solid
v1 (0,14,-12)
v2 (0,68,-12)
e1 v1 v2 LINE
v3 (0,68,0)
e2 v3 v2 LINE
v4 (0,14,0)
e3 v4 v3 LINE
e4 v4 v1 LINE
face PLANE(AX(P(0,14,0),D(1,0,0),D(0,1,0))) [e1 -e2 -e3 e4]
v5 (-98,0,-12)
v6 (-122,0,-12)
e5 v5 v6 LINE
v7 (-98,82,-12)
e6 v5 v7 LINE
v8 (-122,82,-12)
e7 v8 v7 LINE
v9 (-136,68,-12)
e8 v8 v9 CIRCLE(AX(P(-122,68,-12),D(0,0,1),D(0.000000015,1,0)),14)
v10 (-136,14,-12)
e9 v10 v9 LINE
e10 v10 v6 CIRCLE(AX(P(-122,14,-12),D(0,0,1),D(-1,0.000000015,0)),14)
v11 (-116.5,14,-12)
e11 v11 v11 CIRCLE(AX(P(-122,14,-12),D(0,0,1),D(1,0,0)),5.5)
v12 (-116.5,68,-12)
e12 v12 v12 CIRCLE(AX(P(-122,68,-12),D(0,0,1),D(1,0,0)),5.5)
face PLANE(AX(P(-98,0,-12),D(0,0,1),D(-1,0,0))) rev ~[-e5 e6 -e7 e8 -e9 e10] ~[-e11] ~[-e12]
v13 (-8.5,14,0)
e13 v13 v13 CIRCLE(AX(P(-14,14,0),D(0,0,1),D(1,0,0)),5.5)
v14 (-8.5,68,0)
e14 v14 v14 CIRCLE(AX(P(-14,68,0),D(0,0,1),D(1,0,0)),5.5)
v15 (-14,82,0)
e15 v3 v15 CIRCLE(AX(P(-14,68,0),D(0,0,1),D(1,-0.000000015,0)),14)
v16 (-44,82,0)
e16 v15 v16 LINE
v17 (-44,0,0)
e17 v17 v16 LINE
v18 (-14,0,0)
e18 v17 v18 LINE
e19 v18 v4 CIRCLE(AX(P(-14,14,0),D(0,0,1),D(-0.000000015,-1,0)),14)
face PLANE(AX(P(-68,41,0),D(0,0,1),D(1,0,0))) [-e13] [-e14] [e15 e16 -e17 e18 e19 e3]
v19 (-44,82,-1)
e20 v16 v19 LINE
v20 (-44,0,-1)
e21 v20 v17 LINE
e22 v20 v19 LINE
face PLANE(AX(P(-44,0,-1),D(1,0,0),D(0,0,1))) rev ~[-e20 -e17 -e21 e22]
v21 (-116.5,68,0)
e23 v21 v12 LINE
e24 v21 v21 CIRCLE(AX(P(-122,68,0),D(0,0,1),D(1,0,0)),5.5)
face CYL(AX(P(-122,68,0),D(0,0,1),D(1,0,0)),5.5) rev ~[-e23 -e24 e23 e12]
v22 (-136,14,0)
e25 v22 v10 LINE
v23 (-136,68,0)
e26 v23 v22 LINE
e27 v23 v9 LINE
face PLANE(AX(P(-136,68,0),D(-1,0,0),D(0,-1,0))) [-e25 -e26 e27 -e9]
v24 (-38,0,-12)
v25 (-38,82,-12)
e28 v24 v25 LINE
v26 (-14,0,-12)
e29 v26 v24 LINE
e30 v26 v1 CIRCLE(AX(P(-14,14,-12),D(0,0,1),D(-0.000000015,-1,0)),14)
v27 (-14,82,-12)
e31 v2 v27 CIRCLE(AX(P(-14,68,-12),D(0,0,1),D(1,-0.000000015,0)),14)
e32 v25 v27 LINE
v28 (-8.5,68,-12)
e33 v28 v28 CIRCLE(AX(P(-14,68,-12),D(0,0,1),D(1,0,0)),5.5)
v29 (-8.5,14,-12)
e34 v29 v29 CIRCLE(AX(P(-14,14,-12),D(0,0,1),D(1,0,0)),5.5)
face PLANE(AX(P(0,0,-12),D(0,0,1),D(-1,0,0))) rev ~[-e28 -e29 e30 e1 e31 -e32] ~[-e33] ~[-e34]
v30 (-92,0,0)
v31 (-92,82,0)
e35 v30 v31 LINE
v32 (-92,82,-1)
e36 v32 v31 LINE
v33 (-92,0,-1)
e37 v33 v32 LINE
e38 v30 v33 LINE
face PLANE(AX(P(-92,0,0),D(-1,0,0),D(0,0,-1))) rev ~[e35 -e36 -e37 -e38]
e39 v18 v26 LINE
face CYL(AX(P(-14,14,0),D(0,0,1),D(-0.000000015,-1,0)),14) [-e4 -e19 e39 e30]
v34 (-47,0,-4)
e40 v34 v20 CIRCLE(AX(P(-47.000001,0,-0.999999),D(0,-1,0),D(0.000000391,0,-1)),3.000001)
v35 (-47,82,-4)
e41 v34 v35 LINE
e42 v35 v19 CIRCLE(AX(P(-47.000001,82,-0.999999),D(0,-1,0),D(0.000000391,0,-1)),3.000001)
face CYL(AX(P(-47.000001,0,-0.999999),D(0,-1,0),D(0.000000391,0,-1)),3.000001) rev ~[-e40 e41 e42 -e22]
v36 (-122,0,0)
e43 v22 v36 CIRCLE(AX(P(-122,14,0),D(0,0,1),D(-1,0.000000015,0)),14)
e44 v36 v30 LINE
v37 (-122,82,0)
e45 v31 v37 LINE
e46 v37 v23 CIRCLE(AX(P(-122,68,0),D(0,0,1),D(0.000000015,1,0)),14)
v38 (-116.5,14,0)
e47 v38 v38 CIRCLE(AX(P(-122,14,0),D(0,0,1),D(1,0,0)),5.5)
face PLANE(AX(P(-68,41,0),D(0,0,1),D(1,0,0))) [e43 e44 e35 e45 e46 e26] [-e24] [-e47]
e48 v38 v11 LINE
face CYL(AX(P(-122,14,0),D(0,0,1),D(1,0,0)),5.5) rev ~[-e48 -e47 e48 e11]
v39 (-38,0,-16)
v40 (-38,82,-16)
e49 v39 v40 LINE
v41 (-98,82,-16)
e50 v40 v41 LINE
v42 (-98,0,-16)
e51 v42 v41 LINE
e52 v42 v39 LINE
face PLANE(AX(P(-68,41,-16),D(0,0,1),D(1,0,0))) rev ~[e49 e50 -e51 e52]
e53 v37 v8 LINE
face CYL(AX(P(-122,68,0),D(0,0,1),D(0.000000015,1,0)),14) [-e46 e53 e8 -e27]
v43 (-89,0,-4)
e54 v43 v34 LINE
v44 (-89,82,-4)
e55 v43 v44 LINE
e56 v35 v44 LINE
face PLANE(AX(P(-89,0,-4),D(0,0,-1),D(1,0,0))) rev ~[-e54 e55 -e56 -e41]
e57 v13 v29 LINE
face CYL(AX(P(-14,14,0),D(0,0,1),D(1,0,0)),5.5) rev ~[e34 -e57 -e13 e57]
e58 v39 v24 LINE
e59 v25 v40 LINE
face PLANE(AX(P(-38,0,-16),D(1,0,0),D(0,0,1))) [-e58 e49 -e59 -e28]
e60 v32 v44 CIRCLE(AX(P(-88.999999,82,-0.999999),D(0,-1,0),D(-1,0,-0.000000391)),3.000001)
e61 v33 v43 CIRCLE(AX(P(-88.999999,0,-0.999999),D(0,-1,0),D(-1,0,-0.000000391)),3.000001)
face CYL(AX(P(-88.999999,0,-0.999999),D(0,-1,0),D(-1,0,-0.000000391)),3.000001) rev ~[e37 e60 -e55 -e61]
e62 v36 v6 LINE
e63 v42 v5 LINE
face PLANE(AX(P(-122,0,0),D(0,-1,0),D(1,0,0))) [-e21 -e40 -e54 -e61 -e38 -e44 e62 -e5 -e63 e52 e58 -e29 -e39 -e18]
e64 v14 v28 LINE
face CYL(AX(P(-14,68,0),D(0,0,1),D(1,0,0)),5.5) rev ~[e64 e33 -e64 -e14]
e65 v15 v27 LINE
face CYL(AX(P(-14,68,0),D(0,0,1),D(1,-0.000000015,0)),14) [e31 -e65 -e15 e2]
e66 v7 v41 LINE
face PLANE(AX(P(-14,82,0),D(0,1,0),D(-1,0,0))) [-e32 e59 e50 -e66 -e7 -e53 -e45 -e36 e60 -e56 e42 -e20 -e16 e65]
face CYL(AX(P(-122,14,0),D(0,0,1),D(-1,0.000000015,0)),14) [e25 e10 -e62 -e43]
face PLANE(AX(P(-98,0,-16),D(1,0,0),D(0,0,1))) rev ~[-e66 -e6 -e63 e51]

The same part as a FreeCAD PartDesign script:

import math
import FreeCAD as App
import Part
import Sketcher
from FreeCAD import Vector
Q = App.Units.Quantity

doc = App.newDocument("Part")
body = doc.addObject("PartDesign::Body", "Body")

# Sketch on XY plane
sketch1 = doc.addObject("Sketcher::SketchObject", "Sketch")
body.addObject(sketch1)
sketch1.AttachmentSupport = (doc.XY_Plane, [""])
sketch1.MapMode = "FlatFace"
sketch1.addGeometry([
    Part.LineSegment(Vector(-122, 0, 0), Vector(-14, 0, 0)),  # 0
    Part.ArcOfCircle(Part.Circle(Vector(-14, 14, 0), Vector(0, 0, 1), 14), math.radians(-90), math.radians(0)),  # 1
    Part.LineSegment(Vector(0, 14, 0), Vector(0, 68, 0)),  # 2
    Part.ArcOfCircle(Part.Circle(Vector(-14, 68, 0), Vector(0, 0, 1), 14), math.radians(0), math.radians(90)),  # 3
    Part.LineSegment(Vector(-14, 82, 0), Vector(-122, 82, 0)),  # 4
    Part.ArcOfCircle(Part.Circle(Vector(-122, 68, 0), Vector(0, 0, 1), 14), math.radians(90), math.radians(180)),  # 5
    Part.LineSegment(Vector(-136, 68, 0), Vector(-136, 14, 0)),  # 6
    Part.ArcOfCircle(Part.Circle(Vector(-122, 14, 0), Vector(0, 0, 1), 14), math.radians(180), math.radians(270)),  # 7
    Part.Circle(Vector(-122, 14, 0), Vector(0, 0, 1), 6),  # 8
    Part.Circle(Vector(-14, 14, 0), Vector(0, 0, 1), 6),  # 9
    Part.Circle(Vector(-122, 68, 0), Vector(0, 0, 1), 6),  # 10
    Part.Circle(Vector(-14, 68, 0), Vector(0, 0, 1), 6),  # 11
], False)
sketch1.addConstraint([
    Sketcher.Constraint("Tangent", 0, 2, 1, 1),
    Sketcher.Constraint("Tangent", 1, 2, 2, 1),
    Sketcher.Constraint("Tangent", 2, 2, 3, 1),
    Sketcher.Constraint("Tangent", 3, 2, 4, 1),
    Sketcher.Constraint("Tangent", 4, 2, 5, 1),
    Sketcher.Constraint("Tangent", 5, 2, 6, 1),
    Sketcher.Constraint("Tangent", 6, 2, 7, 1),
    Sketcher.Constraint("Tangent", 7, 2, 0, 1),
    Sketcher.Constraint("Horizontal", 0),
    Sketcher.Constraint("Vertical", 2),
    Sketcher.Constraint("Horizontal", 4),
    Sketcher.Constraint("Vertical", 6),
    Sketcher.Constraint("Coincident", 8, 3, 7, 3),
    Sketcher.Constraint("Coincident", 9, 3, 1, 3),
    Sketcher.Constraint("Coincident", 10, 3, 5, 3),
    Sketcher.Constraint("Coincident", 11, 3, 3, 3),
    Sketcher.Constraint("Equal", 1, 3),
    Sketcher.Constraint("Equal", 3, 5),
    Sketcher.Constraint("Equal", 5, 7),
    Sketcher.Constraint("Equal", 8, 9),
    Sketcher.Constraint("Equal", 9, 10),
    Sketcher.Constraint("Equal", 10, 11),
    Sketcher.Constraint("PointOnObject", 0, 2, -1),
    Sketcher.Constraint("PointOnObject", 1, 2, -2),
    Sketcher.Constraint("Diameter", 8, Q("11 mm")),
    Sketcher.Constraint("Radius", 1, Q("14 mm")),
    Sketcher.Constraint("DistanceX", 0, 1, 0, 2, Q("108 mm")),
    Sketcher.Constraint("DistanceY", 2, 1, 2, 2, Q("54 mm")),
])
pad1 = doc.addObject("PartDesign::Pad", "Pad")
body.addObject(pad1)
pad1.Profile = sketch1
pad1.Length = 16
pad1.Reversed = True

# Sketch on XZ plane
sketch2 = doc.addObject("Sketcher::SketchObject", "Sketch001")
body.addObject(sketch2)
sketch2.AttachmentSupport = (doc.XZ_Plane, [""])
sketch2.MapMode = "FlatFace"
sketch2.addGeometry([
    Part.LineSegment(Vector(-98, -16, 0), Vector(-98, -12, 0)),  # 0
    Part.LineSegment(Vector(-98, -12, 0), Vector(-136, -12, 0)),  # 1
    Part.LineSegment(Vector(-136, -12, 0), Vector(-136, -16, 0)),  # 2
    Part.LineSegment(Vector(-136, -16, 0), Vector(-98, -16, 0)),  # 3
    Part.LineSegment(Vector(-38, -12, 0), Vector(-38, -16, 0)),  # 4
    Part.LineSegment(Vector(-38, -16, 0), Vector(0, -16, 0)),  # 5
    Part.LineSegment(Vector(0, -16, 0), Vector(0, -12, 0)),  # 6
    Part.LineSegment(Vector(0, -12, 0), Vector(-38, -12, 0)),  # 7
    Part.LineSegment(Vector(-44, -1, 0), Vector(-44, 0, 0)),  # 8
    Part.LineSegment(Vector(-44, 0, 0), Vector(-92, 0, 0)),  # 9
    Part.LineSegment(Vector(-92, 0, 0), Vector(-92, -1, 0)),  # 10
    Part.ArcOfCircle(Part.Circle(Vector(-89, -1, 0), Vector(0, 0, 1), 3), math.radians(-180), math.radians(-90)),  # 11
    Part.LineSegment(Vector(-89, -4, 0), Vector(-47, -4, 0)),  # 12
    Part.ArcOfCircle(Part.Circle(Vector(-47, -1, 0), Vector(0, 0, 1), 3), math.radians(-90), math.radians(0)),  # 13
], False)
sketch2.addConstraint([
    Sketcher.Constraint("Coincident", 0, 2, 1, 1),
    Sketcher.Constraint("Coincident", 1, 2, 2, 1),
    Sketcher.Constraint("Coincident", 2, 2, 3, 1),
    Sketcher.Constraint("Coincident", 3, 2, 0, 1),
    Sketcher.Constraint("Coincident", 4, 2, 5, 1),
    Sketcher.Constraint("Coincident", 5, 2, 6, 1),
    Sketcher.Constraint("Coincident", 6, 2, 7, 1),
    Sketcher.Constraint("Coincident", 7, 2, 4, 1),
    Sketcher.Constraint("Coincident", 8, 2, 9, 1),
    Sketcher.Constraint("Coincident", 9, 2, 10, 1),
    Sketcher.Constraint("Tangent", 10, 2, 11, 1),
    Sketcher.Constraint("Tangent", 11, 2, 12, 1),
    Sketcher.Constraint("Tangent", 12, 2, 13, 1),
    Sketcher.Constraint("Tangent", 13, 2, 8, 1),
    Sketcher.Constraint("Vertical", 0),
    Sketcher.Constraint("Horizontal", 1),
    Sketcher.Constraint("Vertical", 2),
    Sketcher.Constraint("Horizontal", 3),
    Sketcher.Constraint("Vertical", 4),
    Sketcher.Constraint("Horizontal", 5),
    Sketcher.Constraint("Vertical", 6),
    Sketcher.Constraint("Horizontal", 7),
    Sketcher.Constraint("Vertical", 8),
    Sketcher.Constraint("Horizontal", 9),
    Sketcher.Constraint("Vertical", 10),
    Sketcher.Constraint("Horizontal", 12),
    Sketcher.Constraint("Equal", 11, 13),
    Sketcher.Constraint("PointOnObject", 5, 2, -2),
    Sketcher.Constraint("PointOnObject", 8, 2, -1),
    Sketcher.Constraint("Horizontal", 3, 2, 4, 2),
    Sketcher.Constraint("Horizontal", 1, 2, 6, 2),
    Sketcher.Constraint("Equal", 3, 5),
    Sketcher.Constraint("Radius", 11, Q("3.000001 mm")),
    Sketcher.Constraint("DistanceX", 1, 2, 1, 1, Q("38 mm")),
    Sketcher.Constraint("DistanceX", 9, 2, 9, 1, Q("48 mm")),
    Sketcher.Constraint("DistanceY", 0, 1, 0, 2, Q("4 mm")),
    Sketcher.Constraint("DistanceY", 8, 1, 8, 2, Q("1 mm")),
    Sketcher.Constraint("DistanceX", 11, 3, -1, 1, Q("88.999999 mm")),
    Sketcher.Constraint("DistanceX", 0, 2, -1, 1, Q("98 mm")),
    Sketcher.Constraint("DistanceY", 0, 2, -1, 1, Q("12 mm")),
])
pocket1 = doc.addObject("PartDesign::Pocket", "Pocket")
body.addObject(pocket1)
pocket1.Profile = sketch2
pocket1.Type = "ThroughAll"

doc.recompute()
